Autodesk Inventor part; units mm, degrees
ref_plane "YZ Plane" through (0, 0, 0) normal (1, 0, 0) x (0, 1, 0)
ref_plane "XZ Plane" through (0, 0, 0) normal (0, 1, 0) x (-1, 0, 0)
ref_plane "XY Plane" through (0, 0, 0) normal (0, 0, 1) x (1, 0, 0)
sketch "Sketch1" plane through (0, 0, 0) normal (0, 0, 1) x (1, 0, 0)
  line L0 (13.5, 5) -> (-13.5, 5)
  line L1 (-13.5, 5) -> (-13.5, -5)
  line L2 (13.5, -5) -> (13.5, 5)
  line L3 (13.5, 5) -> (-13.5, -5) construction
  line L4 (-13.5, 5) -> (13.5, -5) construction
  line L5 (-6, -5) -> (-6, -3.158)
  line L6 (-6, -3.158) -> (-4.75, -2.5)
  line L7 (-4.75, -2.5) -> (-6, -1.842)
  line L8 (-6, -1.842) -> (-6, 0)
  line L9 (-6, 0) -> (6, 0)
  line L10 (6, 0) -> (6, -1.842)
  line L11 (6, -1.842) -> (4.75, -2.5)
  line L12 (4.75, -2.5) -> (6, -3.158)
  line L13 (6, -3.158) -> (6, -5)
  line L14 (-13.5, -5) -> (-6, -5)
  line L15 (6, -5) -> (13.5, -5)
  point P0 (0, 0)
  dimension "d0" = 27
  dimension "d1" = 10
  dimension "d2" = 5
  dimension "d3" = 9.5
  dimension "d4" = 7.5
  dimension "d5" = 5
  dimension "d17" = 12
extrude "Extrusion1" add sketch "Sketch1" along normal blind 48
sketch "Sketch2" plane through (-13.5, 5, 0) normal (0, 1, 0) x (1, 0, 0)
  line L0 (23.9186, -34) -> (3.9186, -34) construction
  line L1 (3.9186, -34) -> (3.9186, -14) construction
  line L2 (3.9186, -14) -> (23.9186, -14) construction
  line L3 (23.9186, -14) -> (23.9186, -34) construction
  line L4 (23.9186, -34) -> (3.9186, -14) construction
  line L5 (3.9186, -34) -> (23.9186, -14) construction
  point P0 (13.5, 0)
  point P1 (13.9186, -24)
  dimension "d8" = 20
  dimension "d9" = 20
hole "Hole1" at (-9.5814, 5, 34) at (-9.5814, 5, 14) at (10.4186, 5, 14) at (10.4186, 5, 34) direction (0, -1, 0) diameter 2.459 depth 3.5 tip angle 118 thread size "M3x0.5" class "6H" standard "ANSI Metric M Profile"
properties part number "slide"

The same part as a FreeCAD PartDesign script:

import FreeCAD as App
import Part
import Sketcher

V = App.Vector


def add_polygon(sketch, points):
    """Adds a closed chain of lines whose ends are joined by coincident constraints."""
    first, n = sketch.GeometryCount, len(points)
    for a, b in zip(points, points[1:] + points[:1]):
        sketch.addGeometry(Part.LineSegment(App.Vector(*a, 0), App.Vector(*b, 0)), False)
    for i in range(n):
        sketch.addConstraint(Sketcher.Constraint("Coincident", first + i, 2, first + (i + 1) % n, 1))

doc = App.newDocument("Part")
body = doc.addObject("PartDesign::Body", "Body")

# Sketch on XY plane
sketch1 = body.newObject("Sketcher::SketchObject", "Sketch")
sketch1.AttachmentSupport = (doc.getObject("XY_Plane"), [""])
sketch1.MapMode = "FlatFace"
add_polygon(sketch1, [(13.5, -5), (13.5, 5), (-13.5, 5), (-13.5, -5), (-6, -5), (-6, -3.2), (-4.8, -2.5), (-6, -1.8), (-6, 0), (6, 0), (6, -1.8), (4.8, -2.5), (6, -3.2), (6, -5)])  # lines 0-13
sketch1.addConstraint([
    Sketcher.Constraint("Vertical", 0),
    Sketcher.Constraint("Horizontal", 1),
    Sketcher.Constraint("Vertical", 2),
    Sketcher.Constraint("Horizontal", 3),
    Sketcher.Constraint("Vertical", 4),
    Sketcher.Constraint("Vertical", 7),
    Sketcher.Constraint("Horizontal", 8),
    Sketcher.Constraint("Vertical", 9),
    Sketcher.Constraint("Vertical", 12),
    Sketcher.Constraint("Horizontal", 13),
    Sketcher.Constraint("Symmetric", 0, 2, 2, 2, -1, 1),
    Sketcher.Constraint("Symmetric", 7, 2, 8, 2, -1, 1),
    Sketcher.Constraint("Symmetric", 5, 2, 10, 2, -2),
    Sketcher.Constraint("Symmetric", 4, 2, 11, 2, -2),
    Sketcher.Constraint("Parallel", 5, 10),
    Sketcher.Constraint("Parallel", 6, 11),
    Sketcher.Constraint("Horizontal", 3, 2, 12, 2),
    Sketcher.Constraint("Vertical", 4, 2, 6, 2),
    Sketcher.Constraint("Equal", 4, 7),
    Sketcher.Constraint("DistanceX", 1, 2, 1, 1, 27.0),
    Sketcher.Constraint("DistanceX", 8, 1, 8, 2, 12.0),
    Sketcher.Constraint("DistanceY", 0, 1, 0, 2, 10.0),
    Sketcher.Constraint("DistanceX", 5, 2, 10, 2, 9.5),
    Sketcher.Constraint("DistanceY", 4, 1, 4, 2, 1.842),
])
pad1 = body.newObject("PartDesign::Pad", "Pad")
pad1.Profile = sketch1
pad1.Length = 48

# Sketch on XZ plane
sketch2 = body.newObject("Sketcher::SketchObject", "Sketch001")
sketch2.AttachmentSupport = (doc.getObject("XZ_Plane"), [""])
sketch2.MapMode = "FlatFace"
sketch2.AttachmentOffset = App.Placement(V(0, 0, -5), App.Rotation())
sketch2.addGeometry([
    Part.Circle(V(-9.6, 34, 0), V(0, 0, 1), 1.2),
    Part.Circle(V(-9.6, 14, 0), V(0, 0, 1), 1.2),
    Part.Circle(V(10.4, 14, 0), V(0, 0, 1), 1.2),
    Part.Circle(V(10.4, 34, 0), V(0, 0, 1), 1.2),
], False)
sketch2.addConstraint([
    Sketcher.Constraint("Equal", 0, 1),
    Sketcher.Constraint("Equal", 1, 2),
    Sketcher.Constraint("Equal", 2, 3),
    Sketcher.Constraint("Horizontal", 1, 3, 2, 3),
    Sketcher.Constraint("Horizontal", 0, 3, 3, 3),
    Sketcher.Constraint("Vertical", 0, 3, 1, 3),
    Sketcher.Constraint("Vertical", 2, 3, 3, 3),
    Sketcher.Constraint("Diameter", 0, 2.459),
    Sketcher.Constraint("DistanceY", -1, 1, 0, 3, 34.0),
    Sketcher.Constraint("DistanceY", -1, 1, 1, 3, 14.0),
    Sketcher.Constraint("DistanceX", 1, 3, 2, 3, 20.0),
    Sketcher.Constraint("DistanceX", 0, 3, -1, 1, 9.5814),
])
doc.recompute()
hole = body.newObject("PartDesign::Hole", "Hole")
hole.Profile = sketch2
hole.ThreadType = "None"
hole.Diameter = 2.459
hole.DepthType = "Dimension"
hole.Depth = 3.5
hole.DrillPoint = "Angled"
hole.DrillPointAngle = 118
hole.Reversed = True

doc.recompute()
